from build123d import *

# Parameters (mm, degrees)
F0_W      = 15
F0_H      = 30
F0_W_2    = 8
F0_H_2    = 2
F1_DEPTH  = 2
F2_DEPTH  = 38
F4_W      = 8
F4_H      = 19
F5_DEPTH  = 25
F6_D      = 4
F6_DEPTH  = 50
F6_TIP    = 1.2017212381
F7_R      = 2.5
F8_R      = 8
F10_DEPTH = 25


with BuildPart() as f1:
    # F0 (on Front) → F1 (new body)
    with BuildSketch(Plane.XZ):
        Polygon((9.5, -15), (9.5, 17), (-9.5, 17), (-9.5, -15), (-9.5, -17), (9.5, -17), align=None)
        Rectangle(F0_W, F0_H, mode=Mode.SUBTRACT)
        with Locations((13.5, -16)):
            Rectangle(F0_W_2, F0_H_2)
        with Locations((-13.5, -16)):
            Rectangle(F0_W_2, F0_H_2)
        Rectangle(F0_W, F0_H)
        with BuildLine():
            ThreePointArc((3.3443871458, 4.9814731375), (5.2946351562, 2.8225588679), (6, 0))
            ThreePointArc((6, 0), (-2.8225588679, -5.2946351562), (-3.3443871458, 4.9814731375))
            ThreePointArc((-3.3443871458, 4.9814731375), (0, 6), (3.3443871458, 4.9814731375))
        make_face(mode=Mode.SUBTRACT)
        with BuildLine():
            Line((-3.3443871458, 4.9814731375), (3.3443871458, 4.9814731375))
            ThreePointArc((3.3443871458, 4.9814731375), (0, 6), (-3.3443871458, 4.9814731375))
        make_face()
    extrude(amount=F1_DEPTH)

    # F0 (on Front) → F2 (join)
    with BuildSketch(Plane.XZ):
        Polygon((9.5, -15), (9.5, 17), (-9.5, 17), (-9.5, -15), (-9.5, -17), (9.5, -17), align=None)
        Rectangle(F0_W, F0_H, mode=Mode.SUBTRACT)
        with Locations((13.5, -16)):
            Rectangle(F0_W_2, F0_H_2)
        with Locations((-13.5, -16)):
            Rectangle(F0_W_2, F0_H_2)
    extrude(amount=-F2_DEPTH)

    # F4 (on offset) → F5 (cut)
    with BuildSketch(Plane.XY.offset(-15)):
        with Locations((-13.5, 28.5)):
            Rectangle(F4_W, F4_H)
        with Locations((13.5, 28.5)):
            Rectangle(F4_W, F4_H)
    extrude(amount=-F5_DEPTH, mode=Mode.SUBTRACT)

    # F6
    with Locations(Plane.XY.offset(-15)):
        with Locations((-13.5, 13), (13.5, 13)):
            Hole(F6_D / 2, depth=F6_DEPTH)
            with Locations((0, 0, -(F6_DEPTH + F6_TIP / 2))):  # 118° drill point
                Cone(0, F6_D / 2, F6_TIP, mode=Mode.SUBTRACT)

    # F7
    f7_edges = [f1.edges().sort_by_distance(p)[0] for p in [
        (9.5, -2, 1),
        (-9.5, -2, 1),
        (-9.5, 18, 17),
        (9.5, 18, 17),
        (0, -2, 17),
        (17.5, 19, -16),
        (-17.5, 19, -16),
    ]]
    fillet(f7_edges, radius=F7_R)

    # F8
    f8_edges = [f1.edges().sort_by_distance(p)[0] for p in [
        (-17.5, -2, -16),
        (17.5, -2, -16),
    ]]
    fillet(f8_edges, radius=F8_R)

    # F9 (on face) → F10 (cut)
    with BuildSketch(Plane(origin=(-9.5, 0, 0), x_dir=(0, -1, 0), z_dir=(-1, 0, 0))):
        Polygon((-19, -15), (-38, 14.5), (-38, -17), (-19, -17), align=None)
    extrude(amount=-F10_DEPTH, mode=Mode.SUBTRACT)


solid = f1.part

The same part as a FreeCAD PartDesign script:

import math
import FreeCAD as App
import Part
import Sketcher
from FreeCAD import Vector
Q = App.Units.Quantity


def edges_at(feature, points):
    """Names of the edges that pass closest to the given points."""
    edges = feature.Shape.Edges
    near = lambda p: min(range(len(edges)), key=lambda i: edges[i].distToShape(Part.Vertex(*p))[0])
    return sorted({f"Edge{near(p) + 1}" for p in points})


def add_polygon(sketch, points):
    """Adds a closed chain of lines whose ends are joined by coincident constraints."""
    first, n = sketch.GeometryCount, len(points)
    for a, b in zip(points, points[1:] + points[:1]):
        sketch.addGeometry(Part.LineSegment(App.Vector(*a, 0), App.Vector(*b, 0)), False)
    for i in range(n):
        sketch.addConstraint(Sketcher.Constraint("Coincident", first + i, 2, first + (i + 1) % n, 1))

doc = App.newDocument("Part")
body = doc.addObject("PartDesign::Body", "Body")

# Sketch on XZ plane
sketch1 = body.newObject("Sketcher::SketchObject", "Sketch")
sketch1.AttachmentSupport = (doc.getObject("XZ_Plane"), [""])
sketch1.MapMode = "FlatFace"
add_polygon(sketch1, [(9.5, 17), (-9.5, 17), (-9.5, -15), (-17.5, -15), (-17.5, -17), (17.5, -17), (17.5, -15), (9.5, -15)])  # lines 0-7
sketch1.addGeometry(Part.ArcOfCircle(Part.Circle(Vector(0, 0, 0), Vector(0, 0, 1), 6), math.radians(124), math.radians(360)), False)  # 8
sketch1.addGeometry(Part.LineSegment(Vector(-3.3, 5, 0), Vector(3.3, 5, 0)), False)  # 9
sketch1.addGeometry(Part.ArcOfCircle(Part.Circle(Vector(0, 0, 0), Vector(0, 0, 1), 6), math.radians(0), math.radians(56)), False)  # 10
sketch1.addConstraint([
    Sketcher.Constraint("Coincident", 8, 1, 9, 1),
    Sketcher.Constraint("Coincident", 9, 2, 10, 2),
    Sketcher.Constraint("Tangent", 10, 1, 8, 2),
    Sketcher.Constraint("Horizontal", 0),
    Sketcher.Constraint("Vertical", 1),
    Sketcher.Constraint("Horizontal", 2),
    Sketcher.Constraint("Vertical", 3),
    Sketcher.Constraint("Horizontal", 4),
    Sketcher.Constraint("Vertical", 5),
    Sketcher.Constraint("Horizontal", 6),
    Sketcher.Constraint("Vertical", 7),
    Sketcher.Constraint("Horizontal", 9),
    Sketcher.Constraint("Coincident", 8, 3, -1, 1),
    Sketcher.Constraint("Equal", 8, 10),
    Sketcher.Constraint("Symmetric", 2, 2, 5, 2, -2),
    Sketcher.Constraint("PointOnObject", 10, 1, -1),
    Sketcher.Constraint("Equal", 2, 6),
    Sketcher.Constraint("Radius", 8, Q("6 mm")),
    Sketcher.Constraint("DistanceX", 0, 2, 0, 1, Q("19 mm")),
    Sketcher.Constraint("DistanceX", 2, 2, 2, 1, Q("8 mm")),
    Sketcher.Constraint("DistanceY", 1, 2, 1, 1, Q("32 mm")),
    Sketcher.Constraint("DistanceY", 3, 2, 3, 1, Q("2 mm")),
    Sketcher.Constraint("DistanceY", -1, 1, 0, 2, Q("17 mm")),
    Sketcher.Constraint("DistanceX", 9, 1, 9, 2, Q("6.688774 mm")),
])
pad1 = body.newObject("PartDesign::Pad", "Pad")
pad1.Profile = sketch1
pad1.Length = 2

# Sketch on XZ plane
sketch2 = body.newObject("Sketcher::SketchObject", "Sketch001")
sketch2.AttachmentSupport = (doc.getObject("XZ_Plane"), [""])
sketch2.MapMode = "FlatFace"
add_polygon(sketch2, [(9.5, 17), (-9.5, 17), (-9.5, -15), (-17.5, -15), (-17.5, -17), (17.5, -17), (17.5, -15), (9.5, -15)])  # lines 0-7
add_polygon(sketch2, [(7.5, -15), (-7.5, -15), (-7.5, 15), (7.5, 15)])  # lines 8-11
sketch2.addConstraint([
    Sketcher.Constraint("Horizontal", 0),
    Sketcher.Constraint("Vertical", 1),
    Sketcher.Constraint("Horizontal", 2),
    Sketcher.Constraint("Vertical", 3),
    Sketcher.Constraint("Horizontal", 4),
    Sketcher.Constraint("Vertical", 5),
    Sketcher.Constraint("Horizontal", 6),
    Sketcher.Constraint("Vertical", 7),
    Sketcher.Constraint("Horizontal", 8),
    Sketcher.Constraint("Vertical", 9),
    Sketcher.Constraint("Horizontal", 10),
    Sketcher.Constraint("Vertical", 11),
    Sketcher.Constraint("Symmetric", 8, 2, 10, 2, -1, 1),
    Sketcher.Constraint("Symmetric", 2, 2, 5, 2, -2),
    Sketcher.Constraint("Horizontal", 6, 2, 8, 2),
    Sketcher.Constraint("Equal", 2, 6),
    Sketcher.Constraint("DistanceX", 0, 2, 0, 1, Q("19 mm")),
    Sketcher.Constraint("DistanceX", 2, 2, 2, 1, Q("8 mm")),
    Sketcher.Constraint("DistanceX", 8, 2, 8, 1, Q("15 mm")),
    Sketcher.Constraint("DistanceY", 1, 2, 1, 1, Q("32 mm")),
    Sketcher.Constraint("DistanceY", 3, 2, 3, 1, Q("2 mm")),
    Sketcher.Constraint("DistanceY", 9, 1, 9, 2, Q("30 mm")),
])
pad2 = body.newObject("PartDesign::Pad", "Pad001")
pad2.Profile = sketch2
pad2.Length = 38
pad2.Reversed = True

# Sketch on XY plane
sketch3 = body.newObject("Sketcher::SketchObject", "Sketch002")
sketch3.AttachmentSupport = (doc.getObject("XY_Plane"), [""])
sketch3.MapMode = "FlatFace"
sketch3.AttachmentOffset = App.Placement(Vector(0, 0, -15), App.Rotation())
add_polygon(sketch3, [(-18, 38), (-18, 19), (-10, 19), (-10, 38)])  # lines 0-3
add_polygon(sketch3, [(10, 38), (10, 19), (18, 19), (18, 38)])  # lines 4-7
sketch3.addConstraint([
    Sketcher.Constraint("Vertical", 0),
    Sketcher.Constraint("Horizontal", 1),
    Sketcher.Constraint("Vertical", 2),
    Sketcher.Constraint("Horizontal", 3),
    Sketcher.Constraint("Vertical", 4),
    Sketcher.Constraint("Horizontal", 5),
    Sketcher.Constraint("Vertical", 6),
    Sketcher.Constraint("Horizontal", 7),
    Sketcher.Constraint("Symmetric", 1, 2, 4, 2, -2),
    Sketcher.Constraint("Symmetric", 3, 2, 6, 2, -2),
    Sketcher.Constraint("DistanceX", 1, 1, 1, 2, Q("8 mm")),
    Sketcher.Constraint("DistanceY", 0, 2, 0, 1, Q("19 mm")),
    Sketcher.Constraint("DistanceY", -1, 1, 0, 2, Q("19 mm")),
    Sketcher.Constraint("DistanceX", 1, 2, 4, 2, Q("19 mm")),
])
pocket1 = body.newObject("PartDesign::Pocket", "Pocket")
pocket1.Profile = sketch3
pocket1.Length = 25

# Sketch on XY plane
sketch4 = body.newObject("Sketcher::SketchObject", "Sketch003")
sketch4.AttachmentSupport = (doc.getObject("XY_Plane"), [""])
sketch4.MapMode = "FlatFace"
sketch4.AttachmentOffset = App.Placement(Vector(0, 0, -15), App.Rotation())
sketch4.addGeometry([
    Part.Circle(Vector(-13.5, 13, 0), Vector(0, 0, 1), 2),
    Part.Circle(Vector(13.5, 13, 0), Vector(0, 0, 1), 2),
], False)
sketch4.addConstraint([
    Sketcher.Constraint("Equal", 0, 1),
    Sketcher.Constraint("Symmetric", 0, 3, 1, 3, -2),
    Sketcher.Constraint("Diameter", 0, Q("4 mm")),
    Sketcher.Constraint("DistanceY", -1, 1, 0, 3, Q("13 mm")),
    Sketcher.Constraint("DistanceX", 0, 3, 1, 3, Q("27 mm")),
])
doc.recompute()
hole = body.newObject("PartDesign::Hole", "Hole")
hole.Profile = sketch4
hole.ThreadType = "None"
hole.Diameter = 4
hole.DepthType = "Dimension"
hole.Depth = 50
hole.DrillPoint = "Angled"
hole.DrillPointAngle = 118
doc.recompute()

fillet = body.newObject("PartDesign::Fillet", "Fillet")
fillet.Base = (hole, edges_at(hole, [
    (9.5, -2, 1),
    (-9.5, -2, 1),
    (-9.5, 18, 17),
    (9.5, 18, 17),
    (0, -2, 17),
    (17.5, 19, -16),
    (-17.5, 19, -16),
]))
fillet.Radius = 2.5
doc.recompute()

fillet2 = body.newObject("PartDesign::Fillet", "Fillet001")
fillet2.Base = (fillet, edges_at(fillet, [(-17.5, -2, -16), (17.5, -2, -16)]))
fillet2.Radius = 8

# Sketch on YZ plane
sketch5 = body.newObject("Sketcher::SketchObject", "Sketch004")
sketch5.AttachmentSupport = (doc.getObject("YZ_Plane"), [""])
sketch5.MapMode = "FlatFace"
sketch5.AttachmentOffset = App.Placement(Vector(0, 0, -9.5), App.Rotation())
add_polygon(sketch5, [(19, -15), (38, 14.5), (38, -17), (19, -17)])  # lines 0-3
sketch5.addConstraint([
    Sketcher.Constraint("Vertical", 1),
    Sketcher.Constraint("Horizontal", 2),
    Sketcher.Constraint("Vertical", 3),
    Sketcher.Constraint("DistanceX", 2, 2, 2, 1, Q("19 mm")),
    Sketcher.Constraint("DistanceY", 3, 1, 3, 2, Q("2 mm")),
    Sketcher.Constraint("DistanceY", 1, 2, 1, 1, Q("31.5 mm")),
    Sketcher.Constraint("DistanceX", -1, 1, 0, 2, Q("38 mm")),
    Sketcher.Constraint("DistanceY", 1, 2, -1, 1, Q("17 mm")),
])
pocket2 = body.newObject("PartDesign::Pocket", "Pocket001")
pocket2.Profile = sketch5
pocket2.Length = 25
pocket2.Reversed = True

doc.recompute()
